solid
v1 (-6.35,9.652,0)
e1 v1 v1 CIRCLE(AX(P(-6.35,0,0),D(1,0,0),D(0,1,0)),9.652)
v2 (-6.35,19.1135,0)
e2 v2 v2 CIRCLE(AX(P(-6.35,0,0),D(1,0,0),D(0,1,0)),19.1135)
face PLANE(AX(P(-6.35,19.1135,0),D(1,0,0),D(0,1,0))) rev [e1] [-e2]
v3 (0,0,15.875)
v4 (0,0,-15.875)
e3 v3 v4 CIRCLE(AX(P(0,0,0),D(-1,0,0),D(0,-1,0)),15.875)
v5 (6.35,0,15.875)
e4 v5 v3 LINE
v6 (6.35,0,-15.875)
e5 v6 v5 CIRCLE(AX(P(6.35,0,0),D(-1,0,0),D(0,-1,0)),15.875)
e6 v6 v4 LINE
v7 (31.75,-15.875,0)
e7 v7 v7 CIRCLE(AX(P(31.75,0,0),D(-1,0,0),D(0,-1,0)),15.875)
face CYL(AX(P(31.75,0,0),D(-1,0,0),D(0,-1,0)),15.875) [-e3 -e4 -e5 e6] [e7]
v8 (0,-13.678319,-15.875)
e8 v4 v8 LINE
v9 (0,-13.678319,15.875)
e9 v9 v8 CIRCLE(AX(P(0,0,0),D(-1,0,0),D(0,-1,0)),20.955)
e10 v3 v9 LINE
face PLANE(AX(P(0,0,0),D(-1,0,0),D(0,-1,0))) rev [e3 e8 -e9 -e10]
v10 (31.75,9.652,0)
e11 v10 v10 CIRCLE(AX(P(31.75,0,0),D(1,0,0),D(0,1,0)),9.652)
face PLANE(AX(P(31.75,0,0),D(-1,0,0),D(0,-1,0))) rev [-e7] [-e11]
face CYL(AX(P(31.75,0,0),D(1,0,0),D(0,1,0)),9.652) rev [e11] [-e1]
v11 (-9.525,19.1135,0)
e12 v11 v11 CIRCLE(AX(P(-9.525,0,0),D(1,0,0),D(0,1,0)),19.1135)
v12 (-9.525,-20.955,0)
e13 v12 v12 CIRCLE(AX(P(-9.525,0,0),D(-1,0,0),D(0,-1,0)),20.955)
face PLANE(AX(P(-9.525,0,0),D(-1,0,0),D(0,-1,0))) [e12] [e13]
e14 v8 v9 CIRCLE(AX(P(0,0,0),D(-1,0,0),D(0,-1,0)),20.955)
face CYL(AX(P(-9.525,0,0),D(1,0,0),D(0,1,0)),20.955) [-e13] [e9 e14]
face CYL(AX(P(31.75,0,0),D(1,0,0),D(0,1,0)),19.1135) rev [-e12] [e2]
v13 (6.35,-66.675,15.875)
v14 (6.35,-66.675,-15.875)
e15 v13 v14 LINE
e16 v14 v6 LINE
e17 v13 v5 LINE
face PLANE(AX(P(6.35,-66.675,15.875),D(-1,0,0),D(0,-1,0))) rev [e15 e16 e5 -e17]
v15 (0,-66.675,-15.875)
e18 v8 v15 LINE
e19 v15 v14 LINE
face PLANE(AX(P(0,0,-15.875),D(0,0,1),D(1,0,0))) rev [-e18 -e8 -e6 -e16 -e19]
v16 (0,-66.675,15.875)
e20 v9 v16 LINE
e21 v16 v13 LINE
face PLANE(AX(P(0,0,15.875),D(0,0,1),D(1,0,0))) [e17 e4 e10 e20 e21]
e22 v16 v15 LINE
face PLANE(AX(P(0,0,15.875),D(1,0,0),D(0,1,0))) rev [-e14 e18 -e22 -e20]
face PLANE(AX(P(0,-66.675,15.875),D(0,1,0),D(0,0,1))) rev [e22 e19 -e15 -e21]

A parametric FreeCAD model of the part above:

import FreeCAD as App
import Part
import Sketcher
from FreeCAD import Vector
Q = App.Units.Quantity


def add_polygon(sketch, points):
    """Adds a closed chain of lines whose ends are joined by coincident constraints."""
    first, n = sketch.GeometryCount, len(points)
    for a, b in zip(points, points[1:] + points[:1]):
        sketch.addGeometry(Part.LineSegment(App.Vector(*a, 0), App.Vector(*b, 0)), False)
    for i in range(n):
        sketch.addConstraint(Sketcher.Constraint("Coincident", first + i, 2, first + (i + 1) % n, 1))

doc = App.newDocument("Part")
params = doc.addObject("Spreadsheet::Sheet", "Params")
for row, (alias, value) in enumerate([
    ("sketch1_width", "0.25 in"),
    ("sketch1_height", "2.625 in"),
    ("pad1_length", "1.25 in"),
    ("sketch2_diameter", "1.25 in"),
    ("pad2_length", "1.25 in"),
    ("sketch3_diameter", "1.65 in"),
    ("pad3_length", "0.375 in"),
    ("sketch4_width", "1.5 in"),
    ("sketch4_height", "0.38 in"),
    ("sketch4_width2", "0.125 in"),
    ("groove_angle", "360 deg"),
], start=1):
    params.set(f"A{row}", alias)
    params.set(f"B{row}", "=" + value)
    params.setAlias(f"B{row}", alias)

body = doc.addObject("PartDesign::Body", "Body")

# Sketch on XY plane
sketch1 = body.newObject("Sketcher::SketchObject", "Sketch")
sketch1.AttachmentSupport = (doc.getObject("XY_Plane"), [""])
sketch1.MapMode = "FlatFace"
add_polygon(sketch1, [(0, 0), (0, -66.675), (6.35, -66.675), (6.35, 0)])  # lines 0-3
sketch1.addConstraint([
    Sketcher.Constraint("Vertical", 0),
    Sketcher.Constraint("Horizontal", 1),
    Sketcher.Constraint("Vertical", 2),
    Sketcher.Constraint("Horizontal", 3),
    Sketcher.Constraint("Coincident", 3, 2, -1, 1),
    Sketcher.Constraint("DistanceX", 1, 1, 1, 2, Q("0.25 in")),
    Sketcher.Constraint("DistanceY", 0, 2, 0, 1, Q("2.625 in")),
])
sketch1.setExpression("Constraints[9]", "Params.sketch1_width")
sketch1.setExpression("Constraints[10]", "Params.sketch1_height")
pad1 = body.newObject("PartDesign::Pad", "Pad")
pad1.Profile = sketch1
pad1.setExpression("Length", "Params.pad1_length")
pad1.Midplane = True

# Sketch on YZ plane
sketch2 = body.newObject("Sketcher::SketchObject", "Sketch001")
sketch2.AttachmentSupport = (doc.getObject("YZ_Plane"), [""])
sketch2.MapMode = "FlatFace"
sketch2.addGeometry(Part.Circle(Vector(0, 0, 0), Vector(0, 0, 1), 15.875), False)
sketch2.addConstraint([
    Sketcher.Constraint("Coincident", 0, 3, -1, 1),
    Sketcher.Constraint("Diameter", 0, Q("1.25 in")),
])
sketch2.setExpression("Constraints[1]", "Params.sketch2_diameter")
pad2 = body.newObject("PartDesign::Pad", "Pad001")
pad2.Profile = sketch2
pad2.setExpression("Length", "Params.pad2_length")

# Sketch on YZ plane
sketch3 = body.newObject("Sketcher::SketchObject", "Sketch002")
sketch3.AttachmentSupport = (doc.getObject("YZ_Plane"), [""])
sketch3.MapMode = "FlatFace"
sketch3.addGeometry(Part.Circle(Vector(0, 0, 0), Vector(0, 0, 1), 20.955), False)
sketch3.addConstraint([
    Sketcher.Constraint("Coincident", 0, 3, -1, 1),
    Sketcher.Constraint("Diameter", 0, Q("1.65 in")),
])
sketch3.setExpression("Constraints[1]", "Params.sketch3_diameter")
pad3 = body.newObject("PartDesign::Pad", "Pad002")
pad3.Profile = sketch3
pad3.setExpression("Length", "Params.pad3_length")
pad3.Reversed = True

# Sketch on XY plane
sketch4 = body.newObject("Sketcher::SketchObject", "Sketch003")
sketch4.AttachmentSupport = (doc.getObject("XY_Plane"), [""])
sketch4.MapMode = "FlatFace"
add_polygon(sketch4, [(-6.35, 19.1135), (-9.525, 19.1135), (-9.525, 0), (31.75, 0), (31.75, 9.652), (-6.35, 9.652)])  # lines 0-5
sketch4.addConstraint([
    Sketcher.Constraint("Horizontal", 0),
    Sketcher.Constraint("Vertical", 1),
    Sketcher.Constraint("Horizontal", 2),
    Sketcher.Constraint("Vertical", 3),
    Sketcher.Constraint("Horizontal", 4),
    Sketcher.Constraint("Vertical", 5),
    Sketcher.Constraint("PointOnObject", 1, 2, -1),
    Sketcher.Constraint("DistanceX", 4, 2, 4, 1, Q("1.5 in")),
    Sketcher.Constraint("DistanceY", 3, 1, 3, 2, Q("0.38 in")),
    Sketcher.Constraint("DistanceX", 0, 2, 0, 1, Q("0.125 in")),
    Sketcher.Constraint("DistanceX", -1, 1, 2, 2, Q("1.25 in")),
    Sketcher.Constraint("DistanceY", 1, 2, 1, 1, Q("0.7525 in")),
])
sketch4.setExpression("Constraints[13]", "Params.sketch4_width")
sketch4.setExpression("Constraints[14]", "Params.sketch4_height")
sketch4.setExpression("Constraints[15]", "Params.sketch4_width2")
groove = body.newObject("PartDesign::Groove", "Groove")
groove.Profile = sketch4
groove.ReferenceAxis = (sketch4, ["H_Axis"])
groove.setExpression("Angle", "Params.groove_angle")

doc.recompute()
